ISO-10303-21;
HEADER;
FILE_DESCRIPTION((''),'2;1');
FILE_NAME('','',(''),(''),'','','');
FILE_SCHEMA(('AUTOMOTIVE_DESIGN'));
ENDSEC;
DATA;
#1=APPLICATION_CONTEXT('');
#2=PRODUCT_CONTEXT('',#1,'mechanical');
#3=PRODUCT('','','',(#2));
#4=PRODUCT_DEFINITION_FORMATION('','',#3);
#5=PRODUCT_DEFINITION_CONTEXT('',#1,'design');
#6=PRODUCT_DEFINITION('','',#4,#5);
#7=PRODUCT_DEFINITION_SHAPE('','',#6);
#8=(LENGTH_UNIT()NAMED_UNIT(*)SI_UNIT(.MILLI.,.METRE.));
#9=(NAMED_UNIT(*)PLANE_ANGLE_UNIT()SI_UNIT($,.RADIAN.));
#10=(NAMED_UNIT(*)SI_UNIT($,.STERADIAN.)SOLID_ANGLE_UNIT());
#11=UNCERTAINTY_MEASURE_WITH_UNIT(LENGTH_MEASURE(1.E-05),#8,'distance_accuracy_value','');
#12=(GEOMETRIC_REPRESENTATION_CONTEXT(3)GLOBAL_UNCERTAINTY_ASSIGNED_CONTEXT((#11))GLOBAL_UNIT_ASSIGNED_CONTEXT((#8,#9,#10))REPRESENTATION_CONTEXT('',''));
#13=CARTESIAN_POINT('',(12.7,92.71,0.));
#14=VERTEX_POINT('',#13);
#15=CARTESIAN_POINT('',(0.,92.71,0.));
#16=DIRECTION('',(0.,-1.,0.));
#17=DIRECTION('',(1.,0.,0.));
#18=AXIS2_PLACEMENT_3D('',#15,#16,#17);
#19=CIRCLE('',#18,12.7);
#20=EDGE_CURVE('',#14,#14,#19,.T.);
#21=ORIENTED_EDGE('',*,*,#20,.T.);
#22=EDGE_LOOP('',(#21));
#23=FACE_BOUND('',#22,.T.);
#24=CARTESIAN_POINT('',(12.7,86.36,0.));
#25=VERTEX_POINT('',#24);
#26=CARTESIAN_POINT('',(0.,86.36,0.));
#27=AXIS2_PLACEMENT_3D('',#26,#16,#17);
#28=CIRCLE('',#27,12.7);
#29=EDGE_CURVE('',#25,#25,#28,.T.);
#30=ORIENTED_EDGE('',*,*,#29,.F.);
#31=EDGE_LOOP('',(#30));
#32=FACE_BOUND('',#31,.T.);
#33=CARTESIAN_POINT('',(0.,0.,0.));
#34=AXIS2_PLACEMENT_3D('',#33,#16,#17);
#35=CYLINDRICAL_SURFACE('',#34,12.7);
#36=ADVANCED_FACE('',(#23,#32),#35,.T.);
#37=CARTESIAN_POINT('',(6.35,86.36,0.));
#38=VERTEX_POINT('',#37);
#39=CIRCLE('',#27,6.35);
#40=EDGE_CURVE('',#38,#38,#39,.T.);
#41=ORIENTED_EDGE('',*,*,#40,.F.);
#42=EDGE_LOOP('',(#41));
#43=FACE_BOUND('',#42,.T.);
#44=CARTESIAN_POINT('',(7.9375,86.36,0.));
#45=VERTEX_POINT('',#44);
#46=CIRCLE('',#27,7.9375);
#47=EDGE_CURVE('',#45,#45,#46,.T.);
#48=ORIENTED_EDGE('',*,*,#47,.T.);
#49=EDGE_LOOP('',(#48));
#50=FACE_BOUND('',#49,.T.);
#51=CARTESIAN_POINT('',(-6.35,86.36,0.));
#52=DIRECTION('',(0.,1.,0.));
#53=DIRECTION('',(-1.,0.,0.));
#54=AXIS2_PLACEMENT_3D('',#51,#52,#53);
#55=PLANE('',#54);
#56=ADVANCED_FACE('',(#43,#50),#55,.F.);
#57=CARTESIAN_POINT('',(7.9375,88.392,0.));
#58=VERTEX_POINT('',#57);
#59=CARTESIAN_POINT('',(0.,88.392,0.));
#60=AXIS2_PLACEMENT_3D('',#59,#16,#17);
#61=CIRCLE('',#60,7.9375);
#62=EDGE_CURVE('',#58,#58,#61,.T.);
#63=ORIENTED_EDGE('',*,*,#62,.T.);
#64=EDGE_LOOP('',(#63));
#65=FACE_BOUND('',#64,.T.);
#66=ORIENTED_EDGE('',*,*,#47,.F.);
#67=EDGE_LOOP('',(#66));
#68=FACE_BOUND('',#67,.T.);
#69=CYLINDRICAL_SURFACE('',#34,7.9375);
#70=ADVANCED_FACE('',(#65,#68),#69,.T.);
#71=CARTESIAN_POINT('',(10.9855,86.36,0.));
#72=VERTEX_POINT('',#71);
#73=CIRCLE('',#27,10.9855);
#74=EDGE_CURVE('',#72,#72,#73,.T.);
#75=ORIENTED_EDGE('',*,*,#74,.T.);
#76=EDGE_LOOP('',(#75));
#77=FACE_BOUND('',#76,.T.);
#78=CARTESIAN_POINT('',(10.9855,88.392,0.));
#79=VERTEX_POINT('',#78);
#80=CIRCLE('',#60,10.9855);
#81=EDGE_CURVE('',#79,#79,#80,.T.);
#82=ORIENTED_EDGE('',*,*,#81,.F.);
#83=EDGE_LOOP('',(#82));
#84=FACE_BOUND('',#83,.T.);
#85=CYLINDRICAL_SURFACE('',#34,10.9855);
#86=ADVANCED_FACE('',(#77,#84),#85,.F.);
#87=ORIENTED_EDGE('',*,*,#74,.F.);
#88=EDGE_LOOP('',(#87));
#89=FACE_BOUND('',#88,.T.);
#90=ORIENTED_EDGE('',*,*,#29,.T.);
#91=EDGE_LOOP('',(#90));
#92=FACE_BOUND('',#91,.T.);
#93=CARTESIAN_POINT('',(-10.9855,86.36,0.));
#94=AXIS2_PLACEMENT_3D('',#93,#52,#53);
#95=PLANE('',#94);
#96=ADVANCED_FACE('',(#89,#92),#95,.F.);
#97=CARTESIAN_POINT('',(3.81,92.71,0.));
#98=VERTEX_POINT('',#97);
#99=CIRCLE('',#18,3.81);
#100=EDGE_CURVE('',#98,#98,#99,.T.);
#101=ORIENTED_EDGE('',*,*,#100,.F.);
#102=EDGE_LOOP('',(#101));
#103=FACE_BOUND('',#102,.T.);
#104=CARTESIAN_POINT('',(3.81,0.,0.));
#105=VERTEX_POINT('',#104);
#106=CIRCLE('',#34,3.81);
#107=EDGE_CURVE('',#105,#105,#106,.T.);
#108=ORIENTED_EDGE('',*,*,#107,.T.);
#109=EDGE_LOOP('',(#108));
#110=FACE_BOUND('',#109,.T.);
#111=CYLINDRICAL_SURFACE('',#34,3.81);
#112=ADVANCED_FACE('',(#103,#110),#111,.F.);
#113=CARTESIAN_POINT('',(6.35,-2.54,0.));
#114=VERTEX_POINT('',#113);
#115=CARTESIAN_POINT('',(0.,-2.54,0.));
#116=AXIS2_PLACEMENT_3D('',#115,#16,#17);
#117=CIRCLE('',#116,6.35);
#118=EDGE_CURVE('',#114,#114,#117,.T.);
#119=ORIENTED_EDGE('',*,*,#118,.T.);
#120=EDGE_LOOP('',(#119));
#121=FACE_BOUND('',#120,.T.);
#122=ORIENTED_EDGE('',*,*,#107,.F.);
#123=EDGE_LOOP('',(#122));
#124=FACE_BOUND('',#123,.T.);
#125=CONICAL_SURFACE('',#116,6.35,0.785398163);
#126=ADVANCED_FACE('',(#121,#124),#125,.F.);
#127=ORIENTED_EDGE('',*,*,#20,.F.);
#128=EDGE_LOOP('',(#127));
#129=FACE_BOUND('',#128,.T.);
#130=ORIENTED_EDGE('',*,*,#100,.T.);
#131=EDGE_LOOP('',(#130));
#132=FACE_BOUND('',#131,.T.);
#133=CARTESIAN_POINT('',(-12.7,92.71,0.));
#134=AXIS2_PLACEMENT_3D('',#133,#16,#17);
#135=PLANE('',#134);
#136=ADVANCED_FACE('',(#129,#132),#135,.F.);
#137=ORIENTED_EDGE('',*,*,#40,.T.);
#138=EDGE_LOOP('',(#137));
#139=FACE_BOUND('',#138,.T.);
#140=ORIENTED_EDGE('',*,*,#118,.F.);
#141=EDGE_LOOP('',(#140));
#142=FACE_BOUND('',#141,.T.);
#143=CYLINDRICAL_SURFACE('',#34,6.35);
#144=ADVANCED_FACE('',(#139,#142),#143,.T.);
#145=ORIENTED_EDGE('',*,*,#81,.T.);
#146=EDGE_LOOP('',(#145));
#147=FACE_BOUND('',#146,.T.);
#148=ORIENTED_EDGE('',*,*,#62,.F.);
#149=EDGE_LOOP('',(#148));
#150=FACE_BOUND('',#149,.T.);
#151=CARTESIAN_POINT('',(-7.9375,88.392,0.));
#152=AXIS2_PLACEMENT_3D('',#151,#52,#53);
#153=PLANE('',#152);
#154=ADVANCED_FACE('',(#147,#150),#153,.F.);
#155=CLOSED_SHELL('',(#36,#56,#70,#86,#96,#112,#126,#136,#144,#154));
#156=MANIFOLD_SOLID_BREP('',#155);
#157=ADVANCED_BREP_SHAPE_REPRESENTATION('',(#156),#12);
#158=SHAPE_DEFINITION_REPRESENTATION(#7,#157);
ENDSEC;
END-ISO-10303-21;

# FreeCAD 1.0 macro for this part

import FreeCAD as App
import Part
import Sketcher
from FreeCAD import Vector
Q = App.Units.Quantity

doc = App.newDocument("Part")
body = doc.addObject("PartDesign::Body", "Body")

# Sketch on XY plane
sketch1 = doc.addObject("Sketcher::SketchObject", "Sketch")
body.addObject(sketch1)
sketch1.AttachmentSupport = (doc.XY_Plane, [""])
sketch1.MapMode = "FlatFace"
sketch1.addGeometry([
    Part.LineSegment(Vector(-6.3, -2.5, 0), Vector(-3.8, 0, 0)),  # 0
    Part.LineSegment(Vector(-3.8, 0, 0), Vector(-3.8, 92.7, 0)),  # 1
    Part.LineSegment(Vector(-3.8, 92.7, 0), Vector(-12.7, 92.7, 0)),  # 2
    Part.LineSegment(Vector(-12.7, 92.7, 0), Vector(-12.7, 86.4, 0)),  # 3
    Part.LineSegment(Vector(-12.7, 86.4, 0), Vector(-11, 86.4, 0)),  # 4
    Part.LineSegment(Vector(-11, 86.4, 0), Vector(-11, 88.4, 0)),  # 5
    Part.LineSegment(Vector(-11, 88.4, 0), Vector(-7.9, 88.4, 0)),  # 6
    Part.LineSegment(Vector(-7.9, 88.4, 0), Vector(-7.9, 86.4, 0)),  # 7
    Part.LineSegment(Vector(-7.9, 86.4, 0), Vector(-6.3, 86.4, 0)),  # 8
    Part.LineSegment(Vector(-6.3, 86.4, 0), Vector(-6.3, -2.5, 0)),  # 9
], False)
sketch1.addConstraint([
    Sketcher.Constraint("Coincident", 0, 2, 1, 1),
    Sketcher.Constraint("Coincident", 1, 2, 2, 1),
    Sketcher.Constraint("Coincident", 2, 2, 3, 1),
    Sketcher.Constraint("Coincident", 3, 2, 4, 1),
    Sketcher.Constraint("Coincident", 4, 2, 5, 1),
    Sketcher.Constraint("Coincident", 5, 2, 6, 1),
    Sketcher.Constraint("Coincident", 6, 2, 7, 1),
    Sketcher.Constraint("Coincident", 7, 2, 8, 1),
    Sketcher.Constraint("Coincident", 8, 2, 9, 1),
    Sketcher.Constraint("Coincident", 9, 2, 0, 1),
    Sketcher.Constraint("Vertical", 1),
    Sketcher.Constraint("Horizontal", 2),
    Sketcher.Constraint("Vertical", 3),
    Sketcher.Constraint("Horizontal", 4),
    Sketcher.Constraint("Vertical", 5),
    Sketcher.Constraint("Horizontal", 6),
    Sketcher.Constraint("Vertical", 7),
    Sketcher.Constraint("Horizontal", 8),
    Sketcher.Constraint("Vertical", 9),
    Sketcher.Constraint("PointOnObject", 0, 2, -1),
    Sketcher.Constraint("Horizontal", 4, 2, 7, 2),
    Sketcher.Constraint("DistanceY", 9, 2, 9, 1, Q("3.5 in")),
    Sketcher.Constraint("Angle", 0, Q("45 deg")),
    Sketcher.Constraint("DistanceX", 2, 2, 2, 1, Q("0.35 in")),
    Sketcher.Constraint("DistanceX", 6, 1, 6, 2, Q("0.12 in")),
    Sketcher.Constraint("DistanceY", 1, 1, 1, 2, Q("3.65 in")),
    Sketcher.Constraint("DistanceY", 3, 2, 3, 1, Q("0.25 in")),
    Sketcher.Constraint("DistanceY", 5, 1, 5, 2, Q("0.08 in")),
    Sketcher.Constraint("DistanceX", 2, 2, -1, 1, Q("0.5 in")),
    Sketcher.Constraint("DistanceX", 8, 1, 8, 2, Q("0.0625 in")),
])
revolution = doc.addObject("PartDesign::Revolution", "Revolution")
body.addObject(revolution)
revolution.Profile = sketch1
revolution.ReferenceAxis = (sketch1, ["V_Axis"])
revolution.Angle = 360

doc.recompute()
